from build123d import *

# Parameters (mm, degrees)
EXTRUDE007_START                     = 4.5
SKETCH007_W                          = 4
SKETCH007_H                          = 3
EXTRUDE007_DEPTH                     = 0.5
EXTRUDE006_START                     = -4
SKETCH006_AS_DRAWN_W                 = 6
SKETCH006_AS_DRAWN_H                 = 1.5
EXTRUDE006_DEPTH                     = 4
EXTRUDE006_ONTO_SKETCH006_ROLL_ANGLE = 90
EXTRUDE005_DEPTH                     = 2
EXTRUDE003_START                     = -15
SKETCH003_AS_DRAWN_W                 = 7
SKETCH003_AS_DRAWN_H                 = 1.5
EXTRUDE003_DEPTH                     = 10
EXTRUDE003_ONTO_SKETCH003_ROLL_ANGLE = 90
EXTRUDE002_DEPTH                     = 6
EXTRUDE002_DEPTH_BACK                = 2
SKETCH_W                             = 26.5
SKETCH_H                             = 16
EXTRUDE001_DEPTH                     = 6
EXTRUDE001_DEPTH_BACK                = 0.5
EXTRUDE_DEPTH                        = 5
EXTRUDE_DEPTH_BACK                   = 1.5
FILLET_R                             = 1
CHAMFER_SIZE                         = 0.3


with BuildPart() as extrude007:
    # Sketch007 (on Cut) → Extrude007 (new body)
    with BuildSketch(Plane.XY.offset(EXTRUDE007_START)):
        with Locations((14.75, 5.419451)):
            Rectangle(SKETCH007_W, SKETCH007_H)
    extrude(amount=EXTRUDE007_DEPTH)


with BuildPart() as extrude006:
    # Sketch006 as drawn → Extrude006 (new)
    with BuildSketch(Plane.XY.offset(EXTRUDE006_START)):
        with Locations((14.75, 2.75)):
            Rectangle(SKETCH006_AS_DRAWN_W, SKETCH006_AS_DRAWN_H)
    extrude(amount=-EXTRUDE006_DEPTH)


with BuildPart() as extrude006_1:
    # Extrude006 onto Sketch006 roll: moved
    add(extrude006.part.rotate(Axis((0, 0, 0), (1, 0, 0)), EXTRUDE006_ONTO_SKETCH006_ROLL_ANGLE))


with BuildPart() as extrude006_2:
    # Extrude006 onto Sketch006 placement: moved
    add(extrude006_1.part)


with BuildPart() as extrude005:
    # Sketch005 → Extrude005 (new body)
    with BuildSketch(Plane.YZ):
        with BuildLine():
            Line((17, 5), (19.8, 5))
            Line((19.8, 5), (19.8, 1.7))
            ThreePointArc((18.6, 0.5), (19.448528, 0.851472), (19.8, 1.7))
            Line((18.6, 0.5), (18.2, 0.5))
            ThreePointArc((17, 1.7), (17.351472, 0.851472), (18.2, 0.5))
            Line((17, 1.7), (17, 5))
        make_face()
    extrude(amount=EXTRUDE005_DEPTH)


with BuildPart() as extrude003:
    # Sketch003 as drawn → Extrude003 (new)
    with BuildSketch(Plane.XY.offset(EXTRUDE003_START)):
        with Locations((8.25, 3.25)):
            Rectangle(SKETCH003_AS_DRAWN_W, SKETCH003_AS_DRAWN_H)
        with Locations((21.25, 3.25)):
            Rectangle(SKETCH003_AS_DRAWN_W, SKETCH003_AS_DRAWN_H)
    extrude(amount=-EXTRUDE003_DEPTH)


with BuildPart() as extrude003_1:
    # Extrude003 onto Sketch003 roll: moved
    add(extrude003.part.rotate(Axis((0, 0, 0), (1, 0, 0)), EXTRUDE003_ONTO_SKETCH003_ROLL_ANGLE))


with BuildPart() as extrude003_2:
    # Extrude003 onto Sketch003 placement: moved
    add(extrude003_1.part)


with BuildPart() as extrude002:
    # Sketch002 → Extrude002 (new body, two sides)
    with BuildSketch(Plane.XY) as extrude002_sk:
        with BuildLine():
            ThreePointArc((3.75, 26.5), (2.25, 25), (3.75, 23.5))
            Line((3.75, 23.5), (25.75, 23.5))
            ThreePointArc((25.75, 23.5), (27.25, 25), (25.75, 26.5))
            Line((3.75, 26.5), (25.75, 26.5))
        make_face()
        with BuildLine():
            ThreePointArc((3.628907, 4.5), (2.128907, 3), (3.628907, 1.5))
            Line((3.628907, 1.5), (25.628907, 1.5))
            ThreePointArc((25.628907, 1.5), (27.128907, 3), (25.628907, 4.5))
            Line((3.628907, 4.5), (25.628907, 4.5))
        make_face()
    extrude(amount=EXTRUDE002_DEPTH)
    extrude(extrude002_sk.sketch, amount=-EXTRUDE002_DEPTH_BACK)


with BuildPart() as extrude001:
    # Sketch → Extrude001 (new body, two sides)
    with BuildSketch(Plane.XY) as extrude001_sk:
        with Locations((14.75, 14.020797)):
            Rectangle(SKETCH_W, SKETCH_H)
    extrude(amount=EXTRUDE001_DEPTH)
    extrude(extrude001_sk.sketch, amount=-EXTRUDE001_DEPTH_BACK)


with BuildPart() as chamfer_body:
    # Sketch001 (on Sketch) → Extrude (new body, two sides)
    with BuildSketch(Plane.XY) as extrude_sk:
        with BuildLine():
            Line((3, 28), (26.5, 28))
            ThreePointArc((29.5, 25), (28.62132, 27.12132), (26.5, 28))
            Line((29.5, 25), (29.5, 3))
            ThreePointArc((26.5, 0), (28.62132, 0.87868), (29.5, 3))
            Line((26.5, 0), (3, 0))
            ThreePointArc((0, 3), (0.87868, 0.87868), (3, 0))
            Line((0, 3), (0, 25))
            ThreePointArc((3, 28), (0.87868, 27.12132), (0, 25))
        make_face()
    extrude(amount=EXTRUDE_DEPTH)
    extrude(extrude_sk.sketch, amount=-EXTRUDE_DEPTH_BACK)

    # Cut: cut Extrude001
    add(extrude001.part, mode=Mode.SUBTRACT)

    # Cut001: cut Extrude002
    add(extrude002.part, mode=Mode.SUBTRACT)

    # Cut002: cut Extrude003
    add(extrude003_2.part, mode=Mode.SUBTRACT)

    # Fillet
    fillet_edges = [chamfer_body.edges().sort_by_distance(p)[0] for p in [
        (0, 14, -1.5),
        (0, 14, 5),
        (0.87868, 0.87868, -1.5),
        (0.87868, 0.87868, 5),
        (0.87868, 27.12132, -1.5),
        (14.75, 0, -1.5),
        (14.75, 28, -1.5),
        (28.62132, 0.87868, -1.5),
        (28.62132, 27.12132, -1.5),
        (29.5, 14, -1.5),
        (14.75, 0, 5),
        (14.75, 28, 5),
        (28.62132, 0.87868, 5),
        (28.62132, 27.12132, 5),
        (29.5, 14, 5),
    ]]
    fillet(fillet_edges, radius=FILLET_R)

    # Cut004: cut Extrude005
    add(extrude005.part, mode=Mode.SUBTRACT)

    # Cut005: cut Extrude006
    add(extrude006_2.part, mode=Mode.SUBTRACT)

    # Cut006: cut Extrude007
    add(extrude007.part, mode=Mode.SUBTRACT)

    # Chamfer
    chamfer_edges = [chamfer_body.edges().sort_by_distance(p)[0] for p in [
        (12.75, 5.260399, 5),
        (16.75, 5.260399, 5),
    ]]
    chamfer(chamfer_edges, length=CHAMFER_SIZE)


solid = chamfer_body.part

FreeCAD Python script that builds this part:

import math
import FreeCAD as App
import Part
import Sketcher

V = App.Vector
Q = App.Units.Quantity


def edges_at(feature, points):
    """Names of the edges that pass closest to the given points."""
    edges = feature.Shape.Edges
    near = lambda p: min(range(len(edges)), key=lambda i: edges[i].distToShape(Part.Vertex(*p))[0])
    return sorted({f"Edge{near(p) + 1}" for p in points})

doc = App.newDocument("Part")
params = doc.addObject("Spreadsheet::Sheet", "Params")
for row, (alias, value) in enumerate([
    ("sketch1_width", "4 mm"),
    ("sketch1_height", "3 mm"),
    ("pad1_length", "0.5 mm"),
    ("sketch2_width", "6 mm"),
    ("sketch2_height", "1.5 mm"),
    ("pad2_length", "4 mm"),
    ("sketch3_radius", "1.2 mm"),
    ("sketch3_width", "2.8 mm"),
    ("sketch3_height", "3.3 mm"),
    ("pad3_length", "2 mm"),
    ("sketch4_width", "7 mm"),
    ("sketch4_height", "1.5 mm"),
    ("pad4_length", "10 mm"),
    ("sketch5_radius", "1.5 mm"),
    ("sketch5_width", "22 mm"),
    ("pad5_length", "6 mm"),
    ("pad5_length2", "2 mm"),
    ("sketch6_height", "16 mm"),
    ("sketch6_width", "26.5 mm"),
    ("pad6_length", "6 mm"),
    ("pad6_length2", "0.5 mm"),
    ("sketch7_radius", "3.000001 mm"),
    ("sketch7_height", "22 mm"),
    ("sketch7_width", "23.5 mm"),
    ("pad7_length", "5 mm"),
    ("pad7_length2", "1.5 mm"),
    ("fillet_radius", "1 mm"),
    ("chamfer_size", "0.3 mm"),
], start=1):
    params.set(f"A{row}", alias)
    params.set(f"B{row}", "=" + value)
    params.setAlias(f"B{row}", alias)

body = doc.addObject("PartDesign::Body", "Body")

sketch1 = doc.addObject("Sketcher::SketchObject", "Sketch")
body.addObject(sketch1)
sketch1.AttachmentSupport = (doc.XY_Plane, [""])
sketch1.MapMode = "FlatFace"
sketch1.AttachmentOffset = App.Placement(V(0, 0, 4.5), App.Rotation())
sketch1.addGeometry([
    Part.LineSegment(V(12.8, 6.9, 0), V(12.8, 3.9, 0)),
    Part.LineSegment(V(12.8, 3.9, 0), V(16.8, 3.9, 0)),
    Part.LineSegment(V(16.8, 3.9, 0), V(16.8, 6.9, 0)),
    Part.LineSegment(V(16.8, 6.9, 0), V(12.8, 6.9, 0)),
], False)
sketch1.addConstraint([
    Sketcher.Constraint("Coincident", 0, 2, 1, 1),
    Sketcher.Constraint("Coincident", 1, 2, 2, 1),
    Sketcher.Constraint("Coincident", 2, 2, 3, 1),
    Sketcher.Constraint("Coincident", 3, 2, 0, 1),
    Sketcher.Constraint("Vertical", 0),
    Sketcher.Constraint("Horizontal", 1),
    Sketcher.Constraint("Vertical", 2),
    Sketcher.Constraint("Horizontal", 3),
    Sketcher.Constraint("DistanceX", 1, 1, 1, 2, Q("4 mm")),
    Sketcher.Constraint("DistanceY", 0, 2, 0, 1, Q("3 mm")),
    Sketcher.Constraint("DistanceX", -1, 1, 0, 2, Q("12.75 mm")),
    Sketcher.Constraint("DistanceY", -1, 1, 0, 2, Q("3.919451 mm")),
])
sketch1.setExpression("Constraints[8]", "Params.sketch1_width")
sketch1.setExpression("Constraints[9]", "Params.sketch1_height")
pad1 = doc.addObject("PartDesign::Pad", "Pad")
body.addObject(pad1)
pad1.Profile = sketch1
pad1.setExpression("Length", "Params.pad1_length")
body2 = doc.addObject("PartDesign::Body", "Body001")

sketch2 = doc.addObject("Sketcher::SketchObject", "Sketch001")
body2.addObject(sketch2)
sketch2.AttachmentSupport = (doc.getObject("XY_Plane001"), [""])
sketch2.MapMode = "FlatFace"
sketch2.AttachmentOffset = App.Placement(V(0, 0, -4), App.Rotation())
sketch2.addGeometry([
    Part.LineSegment(V(11.8, 3.5, 0), V(11.8, 2, 0)),
    Part.LineSegment(V(11.8, 2, 0), V(17.8, 2, 0)),
    Part.LineSegment(V(17.8, 2, 0), V(17.8, 3.5, 0)),
    Part.LineSegment(V(17.8, 3.5, 0), V(11.8, 3.5, 0)),
], False)
sketch2.addConstraint([
    Sketcher.Constraint("Coincident", 0, 2, 1, 1),
    Sketcher.Constraint("Coincident", 1, 2, 2, 1),
    Sketcher.Constraint("Coincident", 2, 2, 3, 1),
    Sketcher.Constraint("Coincident", 3, 2, 0, 1),
    Sketcher.Constraint("Vertical", 0),
    Sketcher.Constraint("Horizontal", 1),
    Sketcher.Constraint("Vertical", 2),
    Sketcher.Constraint("Horizontal", 3),
    Sketcher.Constraint("DistanceX", 1, 1, 1, 2, Q("6 mm")),
    Sketcher.Constraint("DistanceY", 0, 2, 0, 1, Q("1.5 mm")),
    Sketcher.Constraint("DistanceY", -1, 1, 0, 2, Q("2 mm")),
    Sketcher.Constraint("DistanceX", -1, 1, 0, 2, Q("11.75 mm")),
])
sketch2.setExpression("Constraints[8]", "Params.sketch2_width")
sketch2.setExpression("Constraints[9]", "Params.sketch2_height")
pad2 = doc.addObject("PartDesign::Pad", "Pad001")
body2.addObject(pad2)
pad2.Profile = sketch2
pad2.setExpression("Length", "Params.pad2_length")
pad2.Reversed = True
body3 = doc.addObject("PartDesign::Body", "Body002")
doc.recompute()

body2.Placement = App.Placement(V(0, 0, 0), App.Rotation(V(1, 0, 0), 90))
boolean = doc.addObject("PartDesign::Boolean", "Boolean")
body3.addObject(boolean)
boolean.Type = "Fuse"
boolean.addObjects([body2])
body4 = doc.addObject("PartDesign::Body", "Body003")

sketch3 = doc.addObject("Sketcher::SketchObject", "Sketch002")
body4.addObject(sketch3)
sketch3.AttachmentSupport = (doc.getObject("YZ_Plane003"), [""])
sketch3.MapMode = "FlatFace"
sketch3.addGeometry([
    Part.LineSegment(V(19.8, 5, 0), V(17, 5, 0)),
    Part.LineSegment(V(17, 5, 0), V(17, 1.7, 0)),
    Part.ArcOfCircle(Part.Circle(V(18.2, 1.7, 0), V(0, 0, 1), 1.2), math.radians(-180), math.radians(-90)),
    Part.LineSegment(V(18.2, 0.5, 0), V(18.6, 0.5, 0)),
    Part.ArcOfCircle(Part.Circle(V(18.6, 1.7, 0), V(0, 0, 1), 1.2), math.radians(-90), math.radians(0)),
    Part.LineSegment(V(19.8, 1.7, 0), V(19.8, 5, 0)),
], False)
sketch3.addConstraint([
    Sketcher.Constraint("Coincident", 0, 2, 1, 1),
    Sketcher.Constraint("Tangent", 1, 2, 2, 1),
    Sketcher.Constraint("Tangent", 2, 2, 3, 1),
    Sketcher.Constraint("Tangent", 3, 2, 4, 1),
    Sketcher.Constraint("Tangent", 4, 2, 5, 1),
    Sketcher.Constraint("Coincident", 5, 2, 0, 1),
    Sketcher.Constraint("Horizontal", 0),
    Sketcher.Constraint("Vertical", 1),
    Sketcher.Constraint("Horizontal", 3),
    Sketcher.Constraint("Vertical", 5),
    Sketcher.Constraint("Equal", 2, 4),
    Sketcher.Constraint("Radius", 2, Q("1.2 mm")),
    Sketcher.Constraint("DistanceX", 0, 2, 0, 1, Q("2.8 mm")),
    Sketcher.Constraint("DistanceY", 1, 2, 1, 1, Q("3.3 mm")),
    Sketcher.Constraint("DistanceX", -1, 1, 0, 2, Q("17 mm")),
    Sketcher.Constraint("DistanceY", -1, 1, 0, 2, Q("5 mm")),
])
sketch3.setExpression("Constraints[11]", "Params.sketch3_radius")
sketch3.setExpression("Constraints[12]", "Params.sketch3_width")
sketch3.setExpression("Constraints[13]", "Params.sketch3_height")
pad3 = doc.addObject("PartDesign::Pad", "Pad002")
body4.addObject(pad3)
pad3.Profile = sketch3
pad3.setExpression("Length", "Params.pad3_length")
body5 = doc.addObject("PartDesign::Body", "Body004")
body5.AllowCompound = True

sketch4 = doc.addObject("Sketcher::SketchObject", "Sketch003")
body5.addObject(sketch4)
sketch4.AttachmentSupport = (doc.getObject("XY_Plane004"), [""])
sketch4.MapMode = "FlatFace"
sketch4.AttachmentOffset = App.Placement(V(0, 0, -15), App.Rotation())
sketch4.addGeometry([
    Part.LineSegment(V(4.8, 4, 0), V(4.8, 2.5, 0)),
    Part.LineSegment(V(4.8, 2.5, 0), V(11.8, 2.5, 0)),
    Part.LineSegment(V(11.8, 2.5, 0), V(11.8, 4, 0)),
    Part.LineSegment(V(11.8, 4, 0), V(4.8, 4, 0)),
    Part.LineSegment(V(17.8, 4, 0), V(17.8, 2.5, 0)),
    Part.LineSegment(V(17.8, 2.5, 0), V(24.8, 2.5, 0)),
    Part.LineSegment(V(24.8, 2.5, 0), V(24.8, 4, 0)),
    Part.LineSegment(V(24.8, 4, 0), V(17.8, 4, 0)),
], False)
sketch4.addConstraint([
    Sketcher.Constraint("Coincident", 0, 2, 1, 1),
    Sketcher.Constraint("Coincident", 1, 2, 2, 1),
    Sketcher.Constraint("Coincident", 2, 2, 3, 1),
    Sketcher.Constraint("Coincident", 3, 2, 0, 1),
    Sketcher.Constraint("Coincident", 4, 2, 5, 1),
    Sketcher.Constraint("Coincident", 5, 2, 6, 1),
    Sketcher.Constraint("Coincident", 6, 2, 7, 1),
    Sketcher.Constraint("Coincident", 7, 2, 4, 1),
    Sketcher.Constraint("Vertical", 0),
    Sketcher.Constraint("Horizontal", 1),
    Sketcher.Constraint("Vertical", 2),
    Sketcher.Constraint("Horizontal", 3),
    Sketcher.Constraint("Vertical", 4),
    Sketcher.Constraint("Horizontal", 5),
    Sketcher.Constraint("Vertical", 6),
    Sketcher.Constraint("Horizontal", 7),
    Sketcher.Constraint("Horizontal", 1, 2, 4, 2),
    Sketcher.Constraint("Horizontal", 3, 2, 6, 2),
    Sketcher.Constraint("Equal", 3, 5),
    Sketcher.Constraint("DistanceX", 1, 1, 1, 2, Q("7 mm")),
    Sketcher.Constraint("DistanceY", 0, 2, 0, 1, Q("1.5 mm")),
    Sketcher.Constraint("DistanceY", -1, 1, 2, 2, Q("4 mm")),
    Sketcher.Constraint("DistanceX", 1, 2, 4, 2, Q("6 mm")),
    Sketcher.Constraint("DistanceX", -1, 1, 0, 2, Q("4.75 mm")),
])
sketch4.setExpression("Constraints[19]", "Params.sketch4_width")
sketch4.setExpression("Constraints[20]", "Params.sketch4_height")
pad4 = doc.addObject("PartDesign::Pad", "Pad003")
body5.addObject(pad4)
pad4.Profile = sketch4
pad4.setExpression("Length", "Params.pad4_length")
pad4.Reversed = True
body6 = doc.addObject("PartDesign::Body", "Body005")
body6.AllowCompound = True
doc.recompute()

body5.Placement = App.Placement(V(0, 0, 0), App.Rotation(V(1, 0, 0), 90))
boolean2 = doc.addObject("PartDesign::Boolean", "Boolean001")
body6.addObject(boolean2)
boolean2.Type = "Fuse"
boolean2.addObjects([body5])
body7 = doc.addObject("PartDesign::Body", "Body006")
body7.AllowCompound = True

sketch5 = doc.addObject("Sketcher::SketchObject", "Sketch004")
body7.addObject(sketch5)
sketch5.AttachmentSupport = (doc.getObject("XY_Plane006"), [""])
sketch5.MapMode = "FlatFace"
sketch5.addGeometry([
    Part.ArcOfCircle(Part.Circle(V(3.8, 25, 0), V(0, 0, 1), 1.5), math.radians(90), math.radians(270)),
    Part.LineSegment(V(3.8, 23.5, 0), V(25.8, 23.5, 0)),
    Part.ArcOfCircle(Part.Circle(V(25.8, 25, 0), V(0, 0, 1), 1.5), math.radians(-90), math.radians(90)),
    Part.LineSegment(V(25.8, 26.5, 0), V(3.8, 26.5, 0)),
    Part.ArcOfCircle(Part.Circle(V(3.6, 3, 0), V(0, 0, 1), 1.5), math.radians(90), math.radians(270)),
    Part.LineSegment(V(3.6, 1.5, 0), V(25.6, 1.5, 0)),
    Part.ArcOfCircle(Part.Circle(V(25.6, 3, 0), V(0, 0, 1), 1.5), math.radians(-90), math.radians(90)),
    Part.LineSegment(V(25.6, 4.5, 0), V(3.6, 4.5, 0)),
], False)
sketch5.addConstraint([
    Sketcher.Constraint("Tangent", 0, 2, 1, 1),
    Sketcher.Constraint("Tangent", 1, 2, 2, 1),
    Sketcher.Constraint("Tangent", 2, 2, 3, 1),
    Sketcher.Constraint("Tangent", 3, 2, 0, 1),
    Sketcher.Constraint("Tangent", 4, 2, 5, 1),
    Sketcher.Constraint("Tangent", 5, 2, 6, 1),
    Sketcher.Constraint("Tangent", 6, 2, 7, 1),
    Sketcher.Constraint("Tangent", 7, 2, 4, 1),
    Sketcher.Constraint("Horizontal", 1),
    Sketcher.Constraint("Horizontal", 3),
    Sketcher.Constraint("Horizontal", 5),
    Sketcher.Constraint("Horizontal", 7),
    Sketcher.Constraint("Equal", 2, 4),
    Sketcher.Constraint("Equal", 3, 5),
    Sketcher.Constraint("Radius", 0, Q("1.5 mm")),
    Sketcher.Constraint("DistanceX", 1, 1, 1, 2, Q("22 mm")),
    Sketcher.Constraint("DistanceY", -1, 1, 0, 3, Q("25 mm")),
    Sketcher.Constraint("DistanceY", -1, 1, 4, 3, Q("3 mm")),
    Sketcher.Constraint("DistanceX", -1, 1, 0, 3, Q("3.75 mm")),
    Sketcher.Constraint("DistanceX", -1, 1, 4, 3, Q("3.628907 mm")),
])
sketch5.setExpression("Constraints[14]", "Params.sketch5_radius")
sketch5.setExpression("Constraints[15]", "Params.sketch5_width")
pad5 = doc.addObject("PartDesign::Pad", "Pad004")
body7.addObject(pad5)
pad5.Profile = sketch5
pad5.Type = "TwoLengths"
pad5.setExpression("Length", "Params.pad5_length")
pad5.setExpression("Length2", "Params.pad5_length2")
body8 = doc.addObject("PartDesign::Body", "Body007")

sketch6 = doc.addObject("Sketcher::SketchObject", "Sketch005")
body8.addObject(sketch6)
sketch6.AttachmentSupport = (doc.getObject("XY_Plane007"), [""])
sketch6.MapMode = "FlatFace"
sketch6.addGeometry([
    Part.LineSegment(V(2, 22, 0), V(2, 6, 0)),
    Part.LineSegment(V(2, 6, 0), V(28, 6, 0)),
    Part.LineSegment(V(28, 6, 0), V(28, 22, 0)),
    Part.LineSegment(V(28, 22, 0), V(2, 22, 0)),
], False)
sketch6.addConstraint([
    Sketcher.Constraint("Coincident", 0, 2, 1, 1),
    Sketcher.Constraint("Coincident", 1, 2, 2, 1),
    Sketcher.Constraint("Coincident", 2, 2, 3, 1),
    Sketcher.Constraint("Coincident", 3, 2, 0, 1),
    Sketcher.Constraint("Vertical", 0),
    Sketcher.Constraint("Horizontal", 1),
    Sketcher.Constraint("Vertical", 2),
    Sketcher.Constraint("Horizontal", 3),
    Sketcher.Constraint("DistanceY", 0, 2, 0, 1, Q("16 mm")),
    Sketcher.Constraint("DistanceX", 1, 1, 1, 2, Q("26.5 mm")),
    Sketcher.Constraint("DistanceX", -1, 1, 1, 2, Q("28 mm")),
    Sketcher.Constraint("DistanceY", -1, 1, 0, 2, Q("6.020797 mm")),
])
sketch6.setExpression("Constraints[8]", "Params.sketch6_height")
sketch6.setExpression("Constraints[9]", "Params.sketch6_width")
pad6 = doc.addObject("PartDesign::Pad", "Pad005")
body8.addObject(pad6)
pad6.Profile = sketch6
pad6.Type = "TwoLengths"
pad6.setExpression("Length", "Params.pad6_length")
pad6.setExpression("Length2", "Params.pad6_length2")
body9 = doc.addObject("PartDesign::Body", "Body008")

sketch7 = doc.addObject("Sketcher::SketchObject", "Sketch006")
body9.addObject(sketch7)
sketch7.AttachmentSupport = (doc.getObject("XY_Plane008"), [""])
sketch7.MapMode = "FlatFace"
sketch7.addGeometry([
    Part.LineSegment(V(26.5, 28, 0), V(3, 28, 0)),
    Part.ArcOfCircle(Part.Circle(V(3, 25, 0), V(0, 0, 1), 3), math.radians(90), math.radians(180)),
    Part.LineSegment(V(0, 25, 0), V(0, 3, 0)),
    Part.ArcOfCircle(Part.Circle(V(3, 3, 0), V(0, 0, 1), 3), math.radians(-180), math.radians(-90)),
    Part.LineSegment(V(3, 0, 0), V(26.5, 0, 0)),
    Part.ArcOfCircle(Part.Circle(V(26.5, 3, 0), V(0, 0, 1), 3), math.radians(-90), math.radians(0)),
    Part.LineSegment(V(29.5, 3, 0), V(29.5, 25, 0)),
    Part.ArcOfCircle(Part.Circle(V(26.5, 25, 0), V(0, 0, 1), 3), math.radians(0), math.radians(90)),
], False)
sketch7.addConstraint([
    Sketcher.Constraint("Tangent", 0, 2, 1, 1),
    Sketcher.Constraint("Tangent", 1, 2, 2, 1),
    Sketcher.Constraint("Tangent", 2, 2, 3, 1),
    Sketcher.Constraint("Tangent", 3, 2, 4, 1),
    Sketcher.Constraint("Tangent", 4, 2, 5, 1),
    Sketcher.Constraint("Tangent", 5, 2, 6, 1),
    Sketcher.Constraint("Tangent", 6, 2, 7, 1),
    Sketcher.Constraint("Tangent", 7, 2, 0, 1),
    Sketcher.Constraint("Horizontal", 0),
    Sketcher.Constraint("Vertical", 2),
    Sketcher.Constraint("Horizontal", 4),
    Sketcher.Constraint("Vertical", 6),
    Sketcher.Constraint("Equal", 1, 3),
    Sketcher.Constraint("Equal", 3, 5),
    Sketcher.Constraint("Equal", 5, 7),
    Sketcher.Constraint("PointOnObject", 1, 2, -2),
    Sketcher.Constraint("PointOnObject", 3, 2, -1),
    Sketcher.Constraint("Radius", 1, Q("3.000001 mm")),
    Sketcher.Constraint("DistanceY", 2, 2, 2, 1, Q("22 mm")),
    Sketcher.Constraint("DistanceX", 0, 2, 0, 1, Q("23.5 mm")),
])
sketch7.setExpression("Constraints[17]", "Params.sketch7_radius")
sketch7.setExpression("Constraints[18]", "Params.sketch7_height")
sketch7.setExpression("Constraints[19]", "Params.sketch7_width")
pad7 = doc.addObject("PartDesign::Pad", "Pad006")
body9.addObject(pad7)
pad7.Profile = sketch7
pad7.Type = "TwoLengths"
pad7.setExpression("Length", "Params.pad7_length")
pad7.setExpression("Length2", "Params.pad7_length2")
doc.recompute()

boolean3 = doc.addObject("PartDesign::Boolean", "Boolean002")
body9.addObject(boolean3)
boolean3.Type = "Cut"
boolean3.addObjects([body8])
doc.recompute()

boolean4 = doc.addObject("PartDesign::Boolean", "Boolean003")
body9.addObject(boolean4)
boolean4.Type = "Cut"
boolean4.addObjects([body7])
doc.recompute()

boolean5 = doc.addObject("PartDesign::Boolean", "Boolean004")
body9.addObject(boolean5)
boolean5.Type = "Cut"
boolean5.addObjects([body6])
doc.recompute()

fillet = doc.addObject("PartDesign::Fillet", "Fillet")
body9.addObject(fillet)
fillet.Base = (boolean5, edges_at(boolean5, [
    (0, 14, -1.5),
    (0, 14, 5),
    (0.879, 0.879, -1.5),
    (0.879, 0.879, 5),
    (0.879, 27.121, -1.5),
    (14.75, 0, -1.5),
    (14.75, 28, -1.5),
    (28.621, 0.879, -1.5),
    (28.621, 27.121, -1.5),
    (29.5, 14, -1.5),
    (14.75, 0, 5),
    (14.75, 28, 5),
    (28.621, 0.879, 5),
    (28.621, 27.121, 5),
    (29.5, 14, 5),
]))
fillet.setExpression("Radius", "Params.fillet_radius")
doc.recompute()

boolean6 = doc.addObject("PartDesign::Boolean", "Boolean005")
body9.addObject(boolean6)
boolean6.Type = "Cut"
boolean6.addObjects([body4])
doc.recompute()

boolean7 = doc.addObject("PartDesign::Boolean", "Boolean006")
body9.addObject(boolean7)
boolean7.Type = "Cut"
boolean7.addObjects([body3])
doc.recompute()

boolean8 = doc.addObject("PartDesign::Boolean", "Boolean007")
body9.addObject(boolean8)
boolean8.Type = "Cut"
boolean8.addObjects([body])
doc.recompute()

chamfer = doc.addObject("PartDesign::Chamfer", "Chamfer")
body9.addObject(chamfer)
chamfer.Base = (boolean8, edges_at(boolean8, [(12.75, 5.26, 5), (16.75, 5.26, 5)]))
chamfer.setExpression("Size", "Params.chamfer_size")

doc.recompute()
